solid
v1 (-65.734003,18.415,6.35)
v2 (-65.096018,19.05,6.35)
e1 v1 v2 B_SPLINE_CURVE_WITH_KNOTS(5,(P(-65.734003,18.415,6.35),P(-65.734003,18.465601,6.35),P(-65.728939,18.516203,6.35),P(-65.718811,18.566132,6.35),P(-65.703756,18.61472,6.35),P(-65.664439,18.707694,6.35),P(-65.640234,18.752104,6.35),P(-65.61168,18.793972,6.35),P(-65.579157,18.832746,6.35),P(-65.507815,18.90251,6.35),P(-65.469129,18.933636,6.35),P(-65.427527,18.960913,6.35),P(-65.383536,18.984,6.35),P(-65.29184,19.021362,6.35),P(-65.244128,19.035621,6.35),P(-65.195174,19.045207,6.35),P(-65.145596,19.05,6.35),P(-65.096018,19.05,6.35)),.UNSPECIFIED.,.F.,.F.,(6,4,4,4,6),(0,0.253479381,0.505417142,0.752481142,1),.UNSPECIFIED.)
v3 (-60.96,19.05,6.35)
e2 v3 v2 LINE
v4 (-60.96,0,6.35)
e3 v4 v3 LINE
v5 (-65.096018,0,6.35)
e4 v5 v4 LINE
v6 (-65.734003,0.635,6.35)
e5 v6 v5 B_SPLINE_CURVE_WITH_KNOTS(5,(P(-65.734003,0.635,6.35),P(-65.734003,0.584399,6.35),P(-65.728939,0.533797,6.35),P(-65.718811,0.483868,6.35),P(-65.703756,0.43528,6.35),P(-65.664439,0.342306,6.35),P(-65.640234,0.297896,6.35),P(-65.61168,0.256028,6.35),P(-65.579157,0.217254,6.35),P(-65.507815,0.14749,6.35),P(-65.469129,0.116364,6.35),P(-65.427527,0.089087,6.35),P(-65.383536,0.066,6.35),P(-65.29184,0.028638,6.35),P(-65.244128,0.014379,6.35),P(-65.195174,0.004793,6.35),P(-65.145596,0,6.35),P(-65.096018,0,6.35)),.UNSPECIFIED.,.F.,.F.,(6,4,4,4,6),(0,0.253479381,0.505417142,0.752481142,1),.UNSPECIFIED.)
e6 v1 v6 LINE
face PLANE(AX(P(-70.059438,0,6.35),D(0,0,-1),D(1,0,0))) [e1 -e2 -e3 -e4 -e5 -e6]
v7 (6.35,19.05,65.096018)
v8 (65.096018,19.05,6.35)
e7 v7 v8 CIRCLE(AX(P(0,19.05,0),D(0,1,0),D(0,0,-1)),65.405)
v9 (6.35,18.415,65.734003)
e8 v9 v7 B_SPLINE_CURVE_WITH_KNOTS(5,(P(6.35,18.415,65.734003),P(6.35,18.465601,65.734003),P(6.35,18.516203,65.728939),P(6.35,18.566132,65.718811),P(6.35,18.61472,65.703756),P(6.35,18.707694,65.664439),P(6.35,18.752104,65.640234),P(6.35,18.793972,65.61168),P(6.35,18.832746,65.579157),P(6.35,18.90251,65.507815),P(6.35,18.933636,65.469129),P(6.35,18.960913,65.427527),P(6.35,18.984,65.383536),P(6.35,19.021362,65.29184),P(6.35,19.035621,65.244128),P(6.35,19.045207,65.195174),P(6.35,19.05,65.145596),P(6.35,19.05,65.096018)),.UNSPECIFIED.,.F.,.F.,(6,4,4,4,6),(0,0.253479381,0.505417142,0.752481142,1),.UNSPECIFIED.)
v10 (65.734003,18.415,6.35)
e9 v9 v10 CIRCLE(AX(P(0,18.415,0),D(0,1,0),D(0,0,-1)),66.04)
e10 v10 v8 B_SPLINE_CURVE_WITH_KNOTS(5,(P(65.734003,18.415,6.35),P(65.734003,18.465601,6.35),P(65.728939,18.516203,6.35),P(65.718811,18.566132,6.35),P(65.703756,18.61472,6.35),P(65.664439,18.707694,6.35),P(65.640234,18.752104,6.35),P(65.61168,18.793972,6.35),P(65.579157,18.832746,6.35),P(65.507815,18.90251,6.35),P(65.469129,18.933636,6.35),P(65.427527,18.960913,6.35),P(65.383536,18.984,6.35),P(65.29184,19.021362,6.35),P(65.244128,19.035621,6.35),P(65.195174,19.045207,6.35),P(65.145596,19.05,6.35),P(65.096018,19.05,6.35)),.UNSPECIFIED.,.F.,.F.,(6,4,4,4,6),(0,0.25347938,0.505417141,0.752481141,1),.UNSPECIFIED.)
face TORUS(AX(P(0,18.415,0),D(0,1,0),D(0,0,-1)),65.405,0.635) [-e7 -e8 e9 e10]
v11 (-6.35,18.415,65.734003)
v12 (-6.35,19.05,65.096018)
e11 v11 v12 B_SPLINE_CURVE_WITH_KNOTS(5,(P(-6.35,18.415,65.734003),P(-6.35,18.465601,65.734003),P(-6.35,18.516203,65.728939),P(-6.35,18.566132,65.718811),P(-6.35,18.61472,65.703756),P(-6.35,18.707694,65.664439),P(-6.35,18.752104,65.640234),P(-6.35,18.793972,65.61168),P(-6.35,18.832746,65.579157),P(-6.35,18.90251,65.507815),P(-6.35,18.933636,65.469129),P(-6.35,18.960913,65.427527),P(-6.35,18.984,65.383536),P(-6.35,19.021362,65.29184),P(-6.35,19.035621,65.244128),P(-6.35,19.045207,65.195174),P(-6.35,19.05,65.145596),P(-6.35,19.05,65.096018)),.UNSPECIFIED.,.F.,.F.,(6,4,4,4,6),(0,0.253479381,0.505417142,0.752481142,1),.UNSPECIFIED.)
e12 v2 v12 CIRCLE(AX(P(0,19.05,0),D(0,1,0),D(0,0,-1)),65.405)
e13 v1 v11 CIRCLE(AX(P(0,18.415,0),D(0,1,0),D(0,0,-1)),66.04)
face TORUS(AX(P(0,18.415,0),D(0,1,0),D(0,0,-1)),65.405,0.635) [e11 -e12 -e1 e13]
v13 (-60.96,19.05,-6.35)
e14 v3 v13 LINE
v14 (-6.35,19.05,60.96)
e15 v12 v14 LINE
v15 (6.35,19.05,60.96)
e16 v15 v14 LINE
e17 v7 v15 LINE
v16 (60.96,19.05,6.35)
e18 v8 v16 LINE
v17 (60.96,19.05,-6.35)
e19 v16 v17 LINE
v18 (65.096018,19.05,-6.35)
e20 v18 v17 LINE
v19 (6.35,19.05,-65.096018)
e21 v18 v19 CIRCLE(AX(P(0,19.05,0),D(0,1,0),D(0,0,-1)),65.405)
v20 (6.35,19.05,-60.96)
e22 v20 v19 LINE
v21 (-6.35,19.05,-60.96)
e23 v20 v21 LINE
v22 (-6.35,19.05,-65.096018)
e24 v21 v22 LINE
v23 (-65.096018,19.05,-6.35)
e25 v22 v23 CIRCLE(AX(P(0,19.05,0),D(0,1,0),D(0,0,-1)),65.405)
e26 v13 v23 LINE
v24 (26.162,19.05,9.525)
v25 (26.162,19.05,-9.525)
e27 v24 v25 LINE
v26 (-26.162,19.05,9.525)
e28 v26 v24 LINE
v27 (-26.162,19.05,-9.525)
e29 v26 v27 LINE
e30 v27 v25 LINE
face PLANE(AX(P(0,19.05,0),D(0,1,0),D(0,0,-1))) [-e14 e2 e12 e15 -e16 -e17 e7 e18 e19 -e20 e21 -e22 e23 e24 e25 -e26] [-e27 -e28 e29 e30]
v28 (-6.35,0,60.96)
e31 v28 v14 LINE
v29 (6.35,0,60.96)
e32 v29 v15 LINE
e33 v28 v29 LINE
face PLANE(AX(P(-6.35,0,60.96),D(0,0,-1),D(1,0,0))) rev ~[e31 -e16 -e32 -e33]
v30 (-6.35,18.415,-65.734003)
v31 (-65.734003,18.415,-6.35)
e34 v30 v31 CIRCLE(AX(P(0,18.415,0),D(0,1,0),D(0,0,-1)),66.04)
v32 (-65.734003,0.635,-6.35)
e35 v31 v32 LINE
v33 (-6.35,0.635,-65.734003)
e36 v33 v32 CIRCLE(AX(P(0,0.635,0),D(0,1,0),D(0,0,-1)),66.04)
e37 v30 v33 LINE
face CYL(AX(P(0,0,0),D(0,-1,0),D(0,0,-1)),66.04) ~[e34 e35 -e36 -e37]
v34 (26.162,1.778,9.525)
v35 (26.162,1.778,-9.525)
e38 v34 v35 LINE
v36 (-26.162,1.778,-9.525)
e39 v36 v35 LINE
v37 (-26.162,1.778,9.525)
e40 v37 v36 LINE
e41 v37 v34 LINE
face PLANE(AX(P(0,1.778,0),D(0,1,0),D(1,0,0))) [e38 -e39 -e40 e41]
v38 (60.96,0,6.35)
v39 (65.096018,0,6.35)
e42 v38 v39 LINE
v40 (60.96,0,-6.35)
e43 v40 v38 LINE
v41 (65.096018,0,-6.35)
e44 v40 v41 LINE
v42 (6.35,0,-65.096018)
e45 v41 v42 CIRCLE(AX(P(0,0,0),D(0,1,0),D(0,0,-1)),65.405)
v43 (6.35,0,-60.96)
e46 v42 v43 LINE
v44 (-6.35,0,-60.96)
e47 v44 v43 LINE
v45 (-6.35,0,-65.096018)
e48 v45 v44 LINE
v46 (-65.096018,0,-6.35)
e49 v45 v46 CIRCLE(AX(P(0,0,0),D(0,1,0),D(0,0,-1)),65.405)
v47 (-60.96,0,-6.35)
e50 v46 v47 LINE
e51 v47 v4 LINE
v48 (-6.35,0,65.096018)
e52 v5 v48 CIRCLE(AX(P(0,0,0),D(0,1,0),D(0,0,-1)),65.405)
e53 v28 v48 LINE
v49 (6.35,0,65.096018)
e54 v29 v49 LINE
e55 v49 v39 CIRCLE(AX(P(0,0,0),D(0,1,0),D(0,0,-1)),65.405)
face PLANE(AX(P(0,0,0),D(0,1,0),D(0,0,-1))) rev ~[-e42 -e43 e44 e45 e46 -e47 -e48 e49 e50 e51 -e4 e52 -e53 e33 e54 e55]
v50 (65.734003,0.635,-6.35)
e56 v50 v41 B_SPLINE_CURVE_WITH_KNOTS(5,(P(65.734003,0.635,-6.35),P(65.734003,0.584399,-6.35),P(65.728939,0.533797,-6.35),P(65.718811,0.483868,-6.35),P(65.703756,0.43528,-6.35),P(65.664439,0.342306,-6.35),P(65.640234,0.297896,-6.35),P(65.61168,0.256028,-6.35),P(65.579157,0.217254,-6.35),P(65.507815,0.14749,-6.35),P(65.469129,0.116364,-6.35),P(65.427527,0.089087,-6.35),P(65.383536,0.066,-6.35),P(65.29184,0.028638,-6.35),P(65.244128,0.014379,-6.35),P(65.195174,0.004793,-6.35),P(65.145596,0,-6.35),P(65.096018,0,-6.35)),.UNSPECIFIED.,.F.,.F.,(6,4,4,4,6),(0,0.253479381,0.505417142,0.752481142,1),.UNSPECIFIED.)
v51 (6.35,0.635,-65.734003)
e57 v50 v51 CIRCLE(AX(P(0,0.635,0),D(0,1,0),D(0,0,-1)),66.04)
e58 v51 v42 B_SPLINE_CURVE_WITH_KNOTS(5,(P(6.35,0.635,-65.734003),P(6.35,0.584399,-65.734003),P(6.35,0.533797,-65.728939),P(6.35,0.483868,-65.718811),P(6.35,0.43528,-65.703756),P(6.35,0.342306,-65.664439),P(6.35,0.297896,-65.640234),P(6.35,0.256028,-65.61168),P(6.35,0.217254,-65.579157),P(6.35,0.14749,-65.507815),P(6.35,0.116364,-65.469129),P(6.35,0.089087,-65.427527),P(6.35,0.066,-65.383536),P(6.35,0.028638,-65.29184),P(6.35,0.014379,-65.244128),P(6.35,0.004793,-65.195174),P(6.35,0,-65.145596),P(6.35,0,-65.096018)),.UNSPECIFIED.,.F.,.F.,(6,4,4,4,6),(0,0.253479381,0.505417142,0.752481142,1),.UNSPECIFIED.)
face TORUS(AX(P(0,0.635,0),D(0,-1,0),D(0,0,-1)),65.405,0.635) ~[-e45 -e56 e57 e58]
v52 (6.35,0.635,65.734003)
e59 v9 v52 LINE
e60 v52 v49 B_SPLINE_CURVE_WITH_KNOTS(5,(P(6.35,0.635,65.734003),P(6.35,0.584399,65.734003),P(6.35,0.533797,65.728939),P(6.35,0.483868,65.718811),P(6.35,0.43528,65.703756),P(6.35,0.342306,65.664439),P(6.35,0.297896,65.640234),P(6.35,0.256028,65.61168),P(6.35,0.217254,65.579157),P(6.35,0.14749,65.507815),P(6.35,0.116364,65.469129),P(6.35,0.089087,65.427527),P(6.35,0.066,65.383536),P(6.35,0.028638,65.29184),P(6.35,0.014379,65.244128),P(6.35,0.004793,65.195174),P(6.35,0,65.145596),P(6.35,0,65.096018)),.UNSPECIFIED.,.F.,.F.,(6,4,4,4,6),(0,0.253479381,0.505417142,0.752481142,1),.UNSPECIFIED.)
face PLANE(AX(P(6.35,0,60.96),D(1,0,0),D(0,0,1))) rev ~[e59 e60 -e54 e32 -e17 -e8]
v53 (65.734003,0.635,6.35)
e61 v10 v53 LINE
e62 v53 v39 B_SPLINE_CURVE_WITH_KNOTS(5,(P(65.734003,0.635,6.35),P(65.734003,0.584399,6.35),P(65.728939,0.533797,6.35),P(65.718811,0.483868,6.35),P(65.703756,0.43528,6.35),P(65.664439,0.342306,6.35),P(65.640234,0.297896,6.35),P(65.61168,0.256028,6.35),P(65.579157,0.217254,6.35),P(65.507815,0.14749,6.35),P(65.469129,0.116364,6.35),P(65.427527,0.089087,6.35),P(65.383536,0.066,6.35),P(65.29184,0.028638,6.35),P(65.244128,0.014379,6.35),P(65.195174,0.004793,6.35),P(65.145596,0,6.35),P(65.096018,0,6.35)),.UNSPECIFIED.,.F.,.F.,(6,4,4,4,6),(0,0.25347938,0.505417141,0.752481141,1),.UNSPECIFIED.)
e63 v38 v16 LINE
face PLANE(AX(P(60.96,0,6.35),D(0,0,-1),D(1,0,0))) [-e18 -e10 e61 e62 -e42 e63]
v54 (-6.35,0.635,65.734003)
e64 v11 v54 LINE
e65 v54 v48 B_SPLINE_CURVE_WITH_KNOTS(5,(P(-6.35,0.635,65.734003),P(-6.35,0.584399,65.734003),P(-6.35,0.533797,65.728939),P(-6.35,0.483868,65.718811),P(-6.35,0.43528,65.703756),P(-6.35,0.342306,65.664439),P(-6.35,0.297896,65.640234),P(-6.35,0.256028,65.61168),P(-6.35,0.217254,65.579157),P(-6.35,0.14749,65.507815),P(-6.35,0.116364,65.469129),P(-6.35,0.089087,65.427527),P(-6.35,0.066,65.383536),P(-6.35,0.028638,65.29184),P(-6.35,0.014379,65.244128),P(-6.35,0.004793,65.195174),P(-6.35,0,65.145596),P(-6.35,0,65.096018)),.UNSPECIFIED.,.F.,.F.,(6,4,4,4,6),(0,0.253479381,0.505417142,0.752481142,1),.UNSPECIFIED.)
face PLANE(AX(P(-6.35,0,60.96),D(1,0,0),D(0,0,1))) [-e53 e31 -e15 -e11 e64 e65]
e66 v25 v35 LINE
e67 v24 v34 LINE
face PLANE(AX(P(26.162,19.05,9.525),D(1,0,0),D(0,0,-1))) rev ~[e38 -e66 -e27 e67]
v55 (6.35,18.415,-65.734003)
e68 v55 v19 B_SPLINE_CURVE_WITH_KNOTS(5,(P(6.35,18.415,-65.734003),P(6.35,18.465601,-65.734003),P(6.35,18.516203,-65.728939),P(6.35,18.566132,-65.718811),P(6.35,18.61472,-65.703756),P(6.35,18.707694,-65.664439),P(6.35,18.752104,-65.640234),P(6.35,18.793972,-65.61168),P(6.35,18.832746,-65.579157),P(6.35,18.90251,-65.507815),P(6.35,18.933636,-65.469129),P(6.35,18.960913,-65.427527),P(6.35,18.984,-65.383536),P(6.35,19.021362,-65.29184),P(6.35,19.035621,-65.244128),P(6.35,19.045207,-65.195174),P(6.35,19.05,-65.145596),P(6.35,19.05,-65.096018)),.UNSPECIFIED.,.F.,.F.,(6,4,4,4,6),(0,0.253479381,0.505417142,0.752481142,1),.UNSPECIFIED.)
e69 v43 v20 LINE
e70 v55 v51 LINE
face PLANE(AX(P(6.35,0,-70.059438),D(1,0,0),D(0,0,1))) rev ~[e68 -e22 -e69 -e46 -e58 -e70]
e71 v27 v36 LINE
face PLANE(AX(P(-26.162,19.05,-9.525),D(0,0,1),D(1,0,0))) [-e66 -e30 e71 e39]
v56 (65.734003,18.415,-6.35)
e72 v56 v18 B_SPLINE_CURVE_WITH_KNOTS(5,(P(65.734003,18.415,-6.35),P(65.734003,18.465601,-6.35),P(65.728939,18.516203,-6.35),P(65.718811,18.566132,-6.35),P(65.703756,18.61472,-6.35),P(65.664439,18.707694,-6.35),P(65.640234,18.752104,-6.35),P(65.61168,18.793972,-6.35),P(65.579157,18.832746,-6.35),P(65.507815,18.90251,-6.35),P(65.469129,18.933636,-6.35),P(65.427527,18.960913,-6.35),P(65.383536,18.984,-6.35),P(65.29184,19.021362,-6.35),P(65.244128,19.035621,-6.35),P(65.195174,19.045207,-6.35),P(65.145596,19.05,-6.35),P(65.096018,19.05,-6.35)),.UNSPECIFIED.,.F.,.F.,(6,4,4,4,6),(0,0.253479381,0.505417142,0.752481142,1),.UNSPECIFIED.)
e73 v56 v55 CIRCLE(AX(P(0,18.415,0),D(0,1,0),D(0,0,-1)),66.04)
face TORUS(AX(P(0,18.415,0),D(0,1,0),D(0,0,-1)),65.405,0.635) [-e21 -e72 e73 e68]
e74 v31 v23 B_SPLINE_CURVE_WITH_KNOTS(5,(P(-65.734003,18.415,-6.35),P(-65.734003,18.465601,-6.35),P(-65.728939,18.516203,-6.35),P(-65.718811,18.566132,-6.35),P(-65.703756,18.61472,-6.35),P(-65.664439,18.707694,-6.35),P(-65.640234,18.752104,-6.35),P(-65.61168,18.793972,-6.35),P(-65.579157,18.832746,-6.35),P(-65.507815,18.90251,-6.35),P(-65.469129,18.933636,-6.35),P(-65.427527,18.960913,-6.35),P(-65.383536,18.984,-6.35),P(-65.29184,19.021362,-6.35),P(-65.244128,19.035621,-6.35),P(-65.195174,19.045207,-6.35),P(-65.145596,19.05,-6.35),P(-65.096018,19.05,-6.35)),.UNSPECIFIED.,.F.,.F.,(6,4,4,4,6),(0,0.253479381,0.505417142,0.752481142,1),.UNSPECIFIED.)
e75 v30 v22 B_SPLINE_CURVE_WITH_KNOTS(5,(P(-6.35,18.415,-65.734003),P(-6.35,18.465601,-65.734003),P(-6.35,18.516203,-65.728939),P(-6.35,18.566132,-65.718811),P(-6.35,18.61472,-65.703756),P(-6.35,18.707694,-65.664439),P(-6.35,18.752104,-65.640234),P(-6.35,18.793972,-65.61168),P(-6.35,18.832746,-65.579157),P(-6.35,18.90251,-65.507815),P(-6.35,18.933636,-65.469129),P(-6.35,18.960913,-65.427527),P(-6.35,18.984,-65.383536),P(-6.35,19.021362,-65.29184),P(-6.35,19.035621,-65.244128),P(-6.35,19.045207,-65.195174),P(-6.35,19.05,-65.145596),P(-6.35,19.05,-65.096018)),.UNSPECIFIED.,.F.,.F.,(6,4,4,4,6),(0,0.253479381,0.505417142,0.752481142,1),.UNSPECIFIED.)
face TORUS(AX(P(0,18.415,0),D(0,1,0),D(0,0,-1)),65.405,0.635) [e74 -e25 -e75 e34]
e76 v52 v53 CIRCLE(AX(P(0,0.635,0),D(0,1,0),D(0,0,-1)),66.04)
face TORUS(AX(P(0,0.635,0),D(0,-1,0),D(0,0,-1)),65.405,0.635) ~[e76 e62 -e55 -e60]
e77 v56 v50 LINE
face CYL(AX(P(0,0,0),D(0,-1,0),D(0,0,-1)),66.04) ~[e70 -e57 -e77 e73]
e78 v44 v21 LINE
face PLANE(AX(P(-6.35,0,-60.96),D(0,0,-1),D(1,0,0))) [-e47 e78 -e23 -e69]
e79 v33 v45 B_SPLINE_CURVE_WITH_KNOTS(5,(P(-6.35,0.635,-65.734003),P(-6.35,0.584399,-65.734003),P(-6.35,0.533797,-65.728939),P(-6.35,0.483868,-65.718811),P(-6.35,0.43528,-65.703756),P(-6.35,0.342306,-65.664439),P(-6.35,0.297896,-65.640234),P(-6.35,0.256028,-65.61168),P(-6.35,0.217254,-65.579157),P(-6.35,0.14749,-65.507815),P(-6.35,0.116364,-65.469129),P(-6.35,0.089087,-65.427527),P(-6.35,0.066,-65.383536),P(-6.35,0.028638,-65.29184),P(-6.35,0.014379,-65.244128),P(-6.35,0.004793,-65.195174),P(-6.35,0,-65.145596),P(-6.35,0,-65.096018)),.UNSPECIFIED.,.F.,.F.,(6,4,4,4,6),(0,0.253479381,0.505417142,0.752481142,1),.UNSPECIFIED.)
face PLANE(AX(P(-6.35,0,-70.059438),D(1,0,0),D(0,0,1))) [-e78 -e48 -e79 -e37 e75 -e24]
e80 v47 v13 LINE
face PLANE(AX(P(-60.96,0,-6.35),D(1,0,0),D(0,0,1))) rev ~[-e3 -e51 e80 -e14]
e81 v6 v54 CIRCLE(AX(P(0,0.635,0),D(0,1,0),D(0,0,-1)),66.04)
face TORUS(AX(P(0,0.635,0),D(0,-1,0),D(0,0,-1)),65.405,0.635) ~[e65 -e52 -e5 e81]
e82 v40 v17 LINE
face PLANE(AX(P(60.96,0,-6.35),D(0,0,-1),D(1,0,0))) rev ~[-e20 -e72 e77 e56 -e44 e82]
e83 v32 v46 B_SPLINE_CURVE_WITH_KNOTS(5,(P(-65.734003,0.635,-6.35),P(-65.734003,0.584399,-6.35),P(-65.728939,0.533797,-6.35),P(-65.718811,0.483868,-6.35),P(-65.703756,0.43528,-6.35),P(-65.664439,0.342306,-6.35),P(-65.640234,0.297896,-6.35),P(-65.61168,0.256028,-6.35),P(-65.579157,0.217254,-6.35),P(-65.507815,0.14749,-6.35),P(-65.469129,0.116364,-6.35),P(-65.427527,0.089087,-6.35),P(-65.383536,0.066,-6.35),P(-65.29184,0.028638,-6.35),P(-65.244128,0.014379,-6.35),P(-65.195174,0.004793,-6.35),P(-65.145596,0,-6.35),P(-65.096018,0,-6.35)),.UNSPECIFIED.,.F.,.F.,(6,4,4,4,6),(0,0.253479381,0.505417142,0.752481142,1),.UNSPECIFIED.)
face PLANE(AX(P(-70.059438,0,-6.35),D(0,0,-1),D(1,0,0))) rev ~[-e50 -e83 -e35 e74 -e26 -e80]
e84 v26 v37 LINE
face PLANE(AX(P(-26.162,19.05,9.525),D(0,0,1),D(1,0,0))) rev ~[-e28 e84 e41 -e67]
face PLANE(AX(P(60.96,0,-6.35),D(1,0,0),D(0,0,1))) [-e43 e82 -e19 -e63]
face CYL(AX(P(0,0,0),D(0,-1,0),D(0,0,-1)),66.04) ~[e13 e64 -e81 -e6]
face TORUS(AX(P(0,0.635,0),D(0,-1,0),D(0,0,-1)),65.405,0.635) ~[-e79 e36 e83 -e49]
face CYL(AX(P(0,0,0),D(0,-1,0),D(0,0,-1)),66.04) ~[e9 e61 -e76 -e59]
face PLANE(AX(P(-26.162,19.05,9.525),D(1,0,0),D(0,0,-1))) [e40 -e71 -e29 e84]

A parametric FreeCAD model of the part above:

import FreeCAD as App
import Part
import Sketcher
Q = App.Units.Quantity


def edges_at(feature, points):
    """Names of the edges that pass closest to the given points."""
    edges = feature.Shape.Edges
    near = lambda p: min(range(len(edges)), key=lambda i: edges[i].distToShape(Part.Vertex(*p))[0])
    return sorted({f"Edge{near(p) + 1}" for p in points})


def add_polygon(sketch, points):
    """Adds a closed chain of lines whose ends are joined by coincident constraints."""
    first, n = sketch.GeometryCount, len(points)
    for a, b in zip(points, points[1:] + points[:1]):
        sketch.addGeometry(Part.LineSegment(App.Vector(*a, 0), App.Vector(*b, 0)), False)
    for i in range(n):
        sketch.addConstraint(Sketcher.Constraint("Coincident", first + i, 2, first + (i + 1) % n, 1))

doc = App.newDocument("Part")
body = doc.addObject("PartDesign::Body", "Body")

# Sketch on XZ plane
sketch1 = body.newObject("Sketcher::SketchObject", "Sketch")
sketch1.AttachmentSupport = (doc.getObject("XZ_Plane"), [""])
sketch1.MapMode = "FlatFace"
sketch1.addGeometry(Part.Circle(App.Vector(0, 0, 0), App.Vector(0, 0, 1), 66.04), False)
sketch1.addConstraint([
    Sketcher.Constraint("Coincident", 0, 3, -1, 1),
    Sketcher.Constraint("Diameter", 0, Q("5.2 in")),
])
pad1 = body.newObject("PartDesign::Pad", "Pad")
pad1.Profile = sketch1
pad1.Length = Q("0.75 in")
pad1.Reversed = True
doc.recompute()

fillet = body.newObject("PartDesign::Fillet", "Fillet")
fillet.Base = (pad1, edges_at(pad1, [(0, 0, 66.04), (0, 19.05, 66.04)]))
fillet.Radius = Q("0.025 in")

# Sketch on XZ plane
sketch2 = body.newObject("Sketcher::SketchObject", "Sketch001")
sketch2.AttachmentSupport = (doc.getObject("XZ_Plane"), [""])
sketch2.MapMode = "FlatFace"
add_polygon(sketch2, [(-6.35, -60.96), (-6.35, -70.059438), (6.35, -70.059438), (6.35, -60.96)])  # lines 0-3
add_polygon(sketch2, [(-70.059438, 6.35), (-70.059438, -6.35), (-60.96, -6.35), (-60.96, 6.35)])  # lines 4-7
add_polygon(sketch2, [(-6.35, 70.059438), (-6.35, 60.96), (6.35, 60.96), (6.35, 70.059438)])  # lines 8-11
add_polygon(sketch2, [(60.96, 6.35), (60.96, -6.35), (70.059438, -6.35), (70.059438, 6.35)])  # lines 12-15
sketch2.addConstraint([
    Sketcher.Constraint("Vertical", 0),
    Sketcher.Constraint("Horizontal", 1),
    Sketcher.Constraint("Vertical", 2),
    Sketcher.Constraint("Horizontal", 3),
    Sketcher.Constraint("Vertical", 4),
    Sketcher.Constraint("Horizontal", 5),
    Sketcher.Constraint("Vertical", 6),
    Sketcher.Constraint("Horizontal", 7),
    Sketcher.Constraint("Vertical", 8),
    Sketcher.Constraint("Horizontal", 9),
    Sketcher.Constraint("Vertical", 10),
    Sketcher.Constraint("Horizontal", 11),
    Sketcher.Constraint("Vertical", 12),
    Sketcher.Constraint("Horizontal", 13),
    Sketcher.Constraint("Vertical", 14),
    Sketcher.Constraint("Horizontal", 15),
    Sketcher.Constraint("Symmetric", 2, 2, 8, 2, -1, 1),
    Sketcher.Constraint("Symmetric", 0, 2, 10, 2, -1, 1),
    Sketcher.Constraint("Symmetric", 6, 2, 12, 2, -1, 1),
    Sketcher.Constraint("Symmetric", 4, 2, 14, 2, -1, 1),
    Sketcher.Constraint("Horizontal", 5, 2, 12, 2),
    Sketcher.Constraint("Vertical", 3, 2, 8, 2),
    Sketcher.Constraint("Equal", 15, 0),
    Sketcher.Constraint("Equal", 11, 4),
    Sketcher.Constraint("DistanceX", 1, 1, 1, 2, Q("0.5 in")),
    Sketcher.Constraint("DistanceY", 2, 2, -1, 1, Q("2.4 in")),
    Sketcher.Constraint("DistanceX", 5, 2, -1, 1, Q("2.4 in")),
    Sketcher.Constraint("DistanceX", 5, 1, 5, 2, 9.099438),
])
pocket1 = body.newObject("PartDesign::Pocket", "Pocket")
pocket1.Profile = sketch2
pocket1.Type = "ThroughAll"

# Sketch on XZ plane
sketch3 = body.newObject("Sketcher::SketchObject", "Sketch002")
sketch3.AttachmentSupport = (doc.getObject("XZ_Plane"), [""])
sketch3.MapMode = "FlatFace"
sketch3.AttachmentOffset = App.Placement(App.Vector(0, 0, -0.75 * 25.4), App.Rotation())
add_polygon(sketch3, [(-26.162, -9.525), (-26.162, 9.525), (26.162, 9.525), (26.162, -9.525)])  # lines 0-3
sketch3.addConstraint([
    Sketcher.Constraint("Vertical", 0),
    Sketcher.Constraint("Horizontal", 1),
    Sketcher.Constraint("Vertical", 2),
    Sketcher.Constraint("Horizontal", 3),
    Sketcher.Constraint("Symmetric", 0, 2, 2, 2, -1, 1),
    Sketcher.Constraint("DistanceX", 1, 1, 1, 2, Q("2.06 in")),
    Sketcher.Constraint("DistanceY", 0, 1, 0, 2, Q("0.75 in")),
])
pocket2 = body.newObject("PartDesign::Pocket", "Pocket001")
pocket2.Profile = sketch3
pocket2.Length = Q("0.68 in")
pocket2.Reversed = True

doc.recompute()
